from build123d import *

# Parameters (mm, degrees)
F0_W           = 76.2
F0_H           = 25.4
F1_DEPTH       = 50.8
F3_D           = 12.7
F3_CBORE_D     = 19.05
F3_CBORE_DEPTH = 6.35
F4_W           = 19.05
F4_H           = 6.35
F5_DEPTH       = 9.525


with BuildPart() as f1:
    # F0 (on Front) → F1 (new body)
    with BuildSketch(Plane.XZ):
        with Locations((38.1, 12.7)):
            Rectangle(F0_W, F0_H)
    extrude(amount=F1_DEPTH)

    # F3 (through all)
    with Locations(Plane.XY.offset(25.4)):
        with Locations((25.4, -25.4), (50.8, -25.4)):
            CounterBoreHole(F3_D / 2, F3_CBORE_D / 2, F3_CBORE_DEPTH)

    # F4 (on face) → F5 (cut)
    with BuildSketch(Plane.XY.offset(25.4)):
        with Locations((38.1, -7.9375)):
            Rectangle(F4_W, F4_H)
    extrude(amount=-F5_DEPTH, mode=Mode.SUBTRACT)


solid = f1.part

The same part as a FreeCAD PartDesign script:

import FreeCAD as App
import Part
import Sketcher

V = App.Vector
Q = App.Units.Quantity


def add_polygon(sketch, points):
    """Adds a closed chain of lines whose ends are joined by coincident constraints."""
    first, n = sketch.GeometryCount, len(points)
    for a, b in zip(points, points[1:] + points[:1]):
        sketch.addGeometry(Part.LineSegment(App.Vector(*a, 0), App.Vector(*b, 0)), False)
    for i in range(n):
        sketch.addConstraint(Sketcher.Constraint("Coincident", first + i, 2, first + (i + 1) % n, 1))

doc = App.newDocument("Part")
body = doc.addObject("PartDesign::Body", "Body")

# Sketch on XZ plane
sketch1 = body.newObject("Sketcher::SketchObject", "Sketch")
sketch1.AttachmentSupport = (doc.getObject("XZ_Plane"), [""])
sketch1.MapMode = "FlatFace"
add_polygon(sketch1, [(0, 25.4), (0, 0), (76.2, 0), (76.2, 25.4)])  # lines 0-3
sketch1.addConstraint([
    Sketcher.Constraint("Vertical", 0),
    Sketcher.Constraint("Horizontal", 1),
    Sketcher.Constraint("Vertical", 2),
    Sketcher.Constraint("Horizontal", 3),
    Sketcher.Constraint("Coincident", 0, 2, -1, 1),
    Sketcher.Constraint("DistanceX", 1, 1, 1, 2, Q("3 in")),
    Sketcher.Constraint("DistanceY", 0, 2, 0, 1, Q("1 in")),
])
pad1 = body.newObject("PartDesign::Pad", "Pad")
pad1.Profile = sketch1
pad1.Length = Q("2 in")

# Sketch on XY plane
sketch2 = body.newObject("Sketcher::SketchObject", "Sketch001")
sketch2.AttachmentSupport = (doc.getObject("XY_Plane"), [""])
sketch2.MapMode = "FlatFace"
sketch2.AttachmentOffset = App.Placement(V(0, 0, 1 * 25.4), App.Rotation())
sketch2.addGeometry([
    Part.Circle(V(25.4, -25.4, 0), V(0, 0, 1), 6.35),
    Part.Circle(V(50.8, -25.4, 0), V(0, 0, 1), 6.35),
], False)
sketch2.addConstraint([
    Sketcher.Constraint("Equal", 0, 1),
    Sketcher.Constraint("Horizontal", 0, 3, 1, 3),
    Sketcher.Constraint("Diameter", 0, Q("0.5 in")),
    Sketcher.Constraint("DistanceX", -1, 1, 0, 3, Q("1 in")),
    Sketcher.Constraint("DistanceY", 0, 3, -1, 1, Q("1 in")),
    Sketcher.Constraint("DistanceX", -1, 1, 1, 3, Q("2 in")),
])
doc.recompute()
hole = body.newObject("PartDesign::Hole", "Hole")
hole.Profile = sketch2
hole.ThreadType = "None"
hole.Diameter = Q("0.5 in")
hole.DepthType = "ThroughAll"
hole.HoleCutType = "Counterbore"
hole.HoleCutDiameter = Q("0.75 in")
hole.HoleCutDepth = Q("0.25 in")

# Sketch on XY plane
sketch3 = body.newObject("Sketcher::SketchObject", "Sketch002")
sketch3.AttachmentSupport = (doc.getObject("XY_Plane"), [""])
sketch3.MapMode = "FlatFace"
sketch3.AttachmentOffset = App.Placement(V(0, 0, 1 * 25.4), App.Rotation())
add_polygon(sketch3, [(28.575, -4.7625), (28.575, -11.1125), (47.625, -11.1125), (47.625, -4.7625)])  # lines 0-3
sketch3.addConstraint([
    Sketcher.Constraint("Vertical", 0),
    Sketcher.Constraint("Horizontal", 1),
    Sketcher.Constraint("Vertical", 2),
    Sketcher.Constraint("Horizontal", 3),
    Sketcher.Constraint("DistanceX", 1, 1, 1, 2, Q("0.75 in")),
    Sketcher.Constraint("DistanceY", 0, 2, 0, 1, Q("0.25 in")),
    Sketcher.Constraint("DistanceX", -1, 1, 0, 2, Q("1.125 in")),
    Sketcher.Constraint("DistanceY", 0, 2, -1, 1, Q("0.4375 in")),
])
pocket1 = body.newObject("PartDesign::Pocket", "Pocket")
pocket1.Profile = sketch3
pocket1.Length = Q("0.375 in")

doc.recompute()
